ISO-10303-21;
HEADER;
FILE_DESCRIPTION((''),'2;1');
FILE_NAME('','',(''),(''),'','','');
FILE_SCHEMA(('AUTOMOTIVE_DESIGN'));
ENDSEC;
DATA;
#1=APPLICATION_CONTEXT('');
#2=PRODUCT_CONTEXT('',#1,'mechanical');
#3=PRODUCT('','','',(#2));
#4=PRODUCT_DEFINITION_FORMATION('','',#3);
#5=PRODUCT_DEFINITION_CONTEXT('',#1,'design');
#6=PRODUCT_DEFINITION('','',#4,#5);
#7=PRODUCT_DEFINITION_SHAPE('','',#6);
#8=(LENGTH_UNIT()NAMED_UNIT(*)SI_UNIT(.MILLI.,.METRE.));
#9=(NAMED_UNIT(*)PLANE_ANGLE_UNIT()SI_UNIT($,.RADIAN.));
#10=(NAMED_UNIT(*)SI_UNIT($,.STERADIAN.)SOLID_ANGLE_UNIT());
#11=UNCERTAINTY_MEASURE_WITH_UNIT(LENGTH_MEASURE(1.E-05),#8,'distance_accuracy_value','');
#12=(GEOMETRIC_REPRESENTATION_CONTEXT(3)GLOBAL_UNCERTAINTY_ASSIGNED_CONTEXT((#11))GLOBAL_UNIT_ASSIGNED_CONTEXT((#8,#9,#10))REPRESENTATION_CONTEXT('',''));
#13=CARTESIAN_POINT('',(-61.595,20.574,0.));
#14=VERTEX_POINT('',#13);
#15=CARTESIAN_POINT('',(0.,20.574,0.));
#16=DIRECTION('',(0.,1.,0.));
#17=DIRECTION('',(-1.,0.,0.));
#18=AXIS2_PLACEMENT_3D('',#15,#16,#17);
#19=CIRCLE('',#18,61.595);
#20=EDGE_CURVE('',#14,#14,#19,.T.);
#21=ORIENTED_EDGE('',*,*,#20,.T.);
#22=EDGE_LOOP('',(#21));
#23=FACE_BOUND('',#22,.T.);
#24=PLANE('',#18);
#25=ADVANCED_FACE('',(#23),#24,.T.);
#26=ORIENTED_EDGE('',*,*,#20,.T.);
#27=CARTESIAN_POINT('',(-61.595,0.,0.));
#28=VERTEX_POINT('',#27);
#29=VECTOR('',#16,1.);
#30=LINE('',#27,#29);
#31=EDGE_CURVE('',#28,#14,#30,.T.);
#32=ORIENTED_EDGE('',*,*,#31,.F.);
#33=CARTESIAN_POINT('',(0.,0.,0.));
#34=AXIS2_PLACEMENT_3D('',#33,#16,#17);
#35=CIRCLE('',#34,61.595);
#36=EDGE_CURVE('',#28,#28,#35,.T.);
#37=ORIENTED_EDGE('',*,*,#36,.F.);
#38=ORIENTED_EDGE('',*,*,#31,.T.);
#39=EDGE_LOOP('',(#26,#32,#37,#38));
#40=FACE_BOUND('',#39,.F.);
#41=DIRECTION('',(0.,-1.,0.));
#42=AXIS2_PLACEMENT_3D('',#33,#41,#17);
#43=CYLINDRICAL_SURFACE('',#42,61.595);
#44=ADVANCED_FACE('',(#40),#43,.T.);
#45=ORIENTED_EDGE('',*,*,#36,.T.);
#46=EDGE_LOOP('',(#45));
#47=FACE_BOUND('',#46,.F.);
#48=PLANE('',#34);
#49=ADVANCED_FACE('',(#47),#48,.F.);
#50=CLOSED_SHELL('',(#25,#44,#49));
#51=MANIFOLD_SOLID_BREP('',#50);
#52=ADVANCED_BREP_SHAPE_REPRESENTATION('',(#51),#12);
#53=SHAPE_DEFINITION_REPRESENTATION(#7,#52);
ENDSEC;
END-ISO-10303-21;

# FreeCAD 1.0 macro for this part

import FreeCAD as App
import Part
import Sketcher
from FreeCAD import Vector
Q = App.Units.Quantity

doc = App.newDocument("Part")
body = doc.addObject("PartDesign::Body", "Body")

sketch1 = body.newObject("Sketcher::SketchObject", "Sketch")
sketch1.AttachmentSupport = (doc.getObject("XZ_Plane"), [""])
sketch1.MapMode = "FlatFace"
sketch1.addGeometry(Part.Circle(Vector(0, 0, 0), Vector(0, 0, 1), 61.595), False)
sketch1.addConstraint([
    Sketcher.Constraint("Coincident", 0, 3, -1, 1),
    Sketcher.Constraint("Diameter", 0, Q("4.85 in")),
])
pad1 = body.newObject("PartDesign::Pad", "Pad")
pad1.Profile = sketch1
pad1.Length = Q("0.81 in")
pad1.Reversed = True

doc.recompute()
